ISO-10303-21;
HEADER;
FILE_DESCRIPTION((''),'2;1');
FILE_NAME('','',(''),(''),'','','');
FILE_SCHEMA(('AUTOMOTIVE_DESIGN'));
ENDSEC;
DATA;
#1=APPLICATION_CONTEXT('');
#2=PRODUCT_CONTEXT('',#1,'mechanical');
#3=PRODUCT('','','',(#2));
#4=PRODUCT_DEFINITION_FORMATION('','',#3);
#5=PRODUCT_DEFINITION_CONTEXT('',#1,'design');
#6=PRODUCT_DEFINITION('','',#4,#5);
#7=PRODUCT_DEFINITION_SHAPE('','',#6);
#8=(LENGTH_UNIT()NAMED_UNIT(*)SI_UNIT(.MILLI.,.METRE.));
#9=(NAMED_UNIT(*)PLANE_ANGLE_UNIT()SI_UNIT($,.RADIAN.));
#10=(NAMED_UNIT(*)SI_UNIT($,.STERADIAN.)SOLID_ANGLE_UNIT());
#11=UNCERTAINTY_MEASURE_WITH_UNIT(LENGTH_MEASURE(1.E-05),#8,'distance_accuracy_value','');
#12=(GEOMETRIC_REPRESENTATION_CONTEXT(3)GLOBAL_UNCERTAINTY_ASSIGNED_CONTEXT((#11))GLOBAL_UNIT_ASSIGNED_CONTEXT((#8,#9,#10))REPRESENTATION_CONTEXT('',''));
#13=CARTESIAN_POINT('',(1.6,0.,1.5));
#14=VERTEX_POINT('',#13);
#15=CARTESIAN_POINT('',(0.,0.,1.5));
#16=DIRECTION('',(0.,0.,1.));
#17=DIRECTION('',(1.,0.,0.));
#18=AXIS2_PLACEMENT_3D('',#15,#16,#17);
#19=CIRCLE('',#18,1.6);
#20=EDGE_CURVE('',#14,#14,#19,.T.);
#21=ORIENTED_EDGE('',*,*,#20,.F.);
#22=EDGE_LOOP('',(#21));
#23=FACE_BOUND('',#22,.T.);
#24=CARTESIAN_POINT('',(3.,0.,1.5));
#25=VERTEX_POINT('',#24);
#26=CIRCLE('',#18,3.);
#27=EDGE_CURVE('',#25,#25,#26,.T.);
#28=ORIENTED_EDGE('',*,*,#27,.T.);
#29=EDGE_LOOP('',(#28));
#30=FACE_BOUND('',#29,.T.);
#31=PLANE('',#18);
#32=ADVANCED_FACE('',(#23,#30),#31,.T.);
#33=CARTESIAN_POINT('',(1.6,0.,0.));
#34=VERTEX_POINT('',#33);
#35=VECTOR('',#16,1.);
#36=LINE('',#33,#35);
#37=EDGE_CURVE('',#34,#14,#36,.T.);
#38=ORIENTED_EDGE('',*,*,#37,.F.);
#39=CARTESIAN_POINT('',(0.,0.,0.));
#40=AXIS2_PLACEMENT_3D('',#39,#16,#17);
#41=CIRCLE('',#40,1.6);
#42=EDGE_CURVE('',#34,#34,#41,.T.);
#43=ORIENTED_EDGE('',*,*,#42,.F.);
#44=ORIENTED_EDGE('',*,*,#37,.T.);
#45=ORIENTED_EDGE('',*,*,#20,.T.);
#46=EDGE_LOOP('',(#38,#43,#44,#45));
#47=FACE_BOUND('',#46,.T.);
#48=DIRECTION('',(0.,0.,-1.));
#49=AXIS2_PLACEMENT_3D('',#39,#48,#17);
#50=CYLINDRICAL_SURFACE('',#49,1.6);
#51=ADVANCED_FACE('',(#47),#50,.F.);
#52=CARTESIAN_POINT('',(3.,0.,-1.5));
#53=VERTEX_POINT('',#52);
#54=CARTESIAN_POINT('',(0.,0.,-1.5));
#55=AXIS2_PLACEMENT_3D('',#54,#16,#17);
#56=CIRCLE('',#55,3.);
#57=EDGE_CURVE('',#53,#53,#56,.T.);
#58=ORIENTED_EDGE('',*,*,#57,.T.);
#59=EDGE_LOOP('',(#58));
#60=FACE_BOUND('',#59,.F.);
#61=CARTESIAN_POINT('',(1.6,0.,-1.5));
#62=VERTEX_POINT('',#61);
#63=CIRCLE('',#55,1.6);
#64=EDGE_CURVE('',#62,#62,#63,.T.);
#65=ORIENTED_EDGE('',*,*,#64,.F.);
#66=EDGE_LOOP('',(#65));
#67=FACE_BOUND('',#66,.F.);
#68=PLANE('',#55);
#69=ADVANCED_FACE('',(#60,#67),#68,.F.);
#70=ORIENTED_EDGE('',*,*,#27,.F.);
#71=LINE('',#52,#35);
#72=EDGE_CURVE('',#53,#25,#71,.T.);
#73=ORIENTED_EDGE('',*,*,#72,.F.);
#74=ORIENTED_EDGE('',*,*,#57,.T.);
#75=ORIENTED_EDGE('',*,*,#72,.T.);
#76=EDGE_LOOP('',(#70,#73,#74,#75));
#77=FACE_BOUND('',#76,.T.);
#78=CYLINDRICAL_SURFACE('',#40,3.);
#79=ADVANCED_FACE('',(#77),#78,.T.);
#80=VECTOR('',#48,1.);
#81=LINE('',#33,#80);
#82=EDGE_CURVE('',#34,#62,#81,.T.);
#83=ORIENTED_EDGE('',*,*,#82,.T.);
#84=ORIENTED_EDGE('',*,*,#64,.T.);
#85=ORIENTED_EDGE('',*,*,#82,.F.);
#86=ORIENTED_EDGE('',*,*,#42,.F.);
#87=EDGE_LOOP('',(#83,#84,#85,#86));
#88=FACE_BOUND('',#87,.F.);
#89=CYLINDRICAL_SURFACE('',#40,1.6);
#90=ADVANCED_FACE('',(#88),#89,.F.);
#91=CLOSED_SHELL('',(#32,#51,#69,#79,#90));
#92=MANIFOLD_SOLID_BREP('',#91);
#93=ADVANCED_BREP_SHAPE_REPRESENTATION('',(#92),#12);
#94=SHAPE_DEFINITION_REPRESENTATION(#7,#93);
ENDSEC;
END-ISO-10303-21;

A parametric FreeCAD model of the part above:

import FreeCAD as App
import Part
import Sketcher

V = App.Vector
Q = App.Units.Quantity

doc = App.newDocument("Part")
body = doc.addObject("PartDesign::Body", "Body")

# Sketch on XY plane
sketch1 = body.newObject("Sketcher::SketchObject", "Sketch")
sketch1.AttachmentSupport = (doc.getObject("XY_Plane"), [""])
sketch1.MapMode = "FlatFace"
sketch1.addGeometry([
    Part.Circle(V(0, 0, 0), V(0, 0, 1), 3),
    Part.Circle(V(0, 0, 0), V(0, 0, 1), 1.6),
], False)
sketch1.addConstraint([
    Sketcher.Constraint("Coincident", 0, 3, -1, 1),
    Sketcher.Constraint("Coincident", 1, 3, -1, 1),
    Sketcher.Constraint("Diameter", 0, Q("6 mm")),
    Sketcher.Constraint("Diameter", 1, Q("3.2 mm")),
])
pad1 = body.newObject("PartDesign::Pad", "Pad")
pad1.Profile = sketch1
pad1.Type = "TwoLengths"
pad1.Length = 1.5
pad1.Length2 = 1.5

doc.recompute()
